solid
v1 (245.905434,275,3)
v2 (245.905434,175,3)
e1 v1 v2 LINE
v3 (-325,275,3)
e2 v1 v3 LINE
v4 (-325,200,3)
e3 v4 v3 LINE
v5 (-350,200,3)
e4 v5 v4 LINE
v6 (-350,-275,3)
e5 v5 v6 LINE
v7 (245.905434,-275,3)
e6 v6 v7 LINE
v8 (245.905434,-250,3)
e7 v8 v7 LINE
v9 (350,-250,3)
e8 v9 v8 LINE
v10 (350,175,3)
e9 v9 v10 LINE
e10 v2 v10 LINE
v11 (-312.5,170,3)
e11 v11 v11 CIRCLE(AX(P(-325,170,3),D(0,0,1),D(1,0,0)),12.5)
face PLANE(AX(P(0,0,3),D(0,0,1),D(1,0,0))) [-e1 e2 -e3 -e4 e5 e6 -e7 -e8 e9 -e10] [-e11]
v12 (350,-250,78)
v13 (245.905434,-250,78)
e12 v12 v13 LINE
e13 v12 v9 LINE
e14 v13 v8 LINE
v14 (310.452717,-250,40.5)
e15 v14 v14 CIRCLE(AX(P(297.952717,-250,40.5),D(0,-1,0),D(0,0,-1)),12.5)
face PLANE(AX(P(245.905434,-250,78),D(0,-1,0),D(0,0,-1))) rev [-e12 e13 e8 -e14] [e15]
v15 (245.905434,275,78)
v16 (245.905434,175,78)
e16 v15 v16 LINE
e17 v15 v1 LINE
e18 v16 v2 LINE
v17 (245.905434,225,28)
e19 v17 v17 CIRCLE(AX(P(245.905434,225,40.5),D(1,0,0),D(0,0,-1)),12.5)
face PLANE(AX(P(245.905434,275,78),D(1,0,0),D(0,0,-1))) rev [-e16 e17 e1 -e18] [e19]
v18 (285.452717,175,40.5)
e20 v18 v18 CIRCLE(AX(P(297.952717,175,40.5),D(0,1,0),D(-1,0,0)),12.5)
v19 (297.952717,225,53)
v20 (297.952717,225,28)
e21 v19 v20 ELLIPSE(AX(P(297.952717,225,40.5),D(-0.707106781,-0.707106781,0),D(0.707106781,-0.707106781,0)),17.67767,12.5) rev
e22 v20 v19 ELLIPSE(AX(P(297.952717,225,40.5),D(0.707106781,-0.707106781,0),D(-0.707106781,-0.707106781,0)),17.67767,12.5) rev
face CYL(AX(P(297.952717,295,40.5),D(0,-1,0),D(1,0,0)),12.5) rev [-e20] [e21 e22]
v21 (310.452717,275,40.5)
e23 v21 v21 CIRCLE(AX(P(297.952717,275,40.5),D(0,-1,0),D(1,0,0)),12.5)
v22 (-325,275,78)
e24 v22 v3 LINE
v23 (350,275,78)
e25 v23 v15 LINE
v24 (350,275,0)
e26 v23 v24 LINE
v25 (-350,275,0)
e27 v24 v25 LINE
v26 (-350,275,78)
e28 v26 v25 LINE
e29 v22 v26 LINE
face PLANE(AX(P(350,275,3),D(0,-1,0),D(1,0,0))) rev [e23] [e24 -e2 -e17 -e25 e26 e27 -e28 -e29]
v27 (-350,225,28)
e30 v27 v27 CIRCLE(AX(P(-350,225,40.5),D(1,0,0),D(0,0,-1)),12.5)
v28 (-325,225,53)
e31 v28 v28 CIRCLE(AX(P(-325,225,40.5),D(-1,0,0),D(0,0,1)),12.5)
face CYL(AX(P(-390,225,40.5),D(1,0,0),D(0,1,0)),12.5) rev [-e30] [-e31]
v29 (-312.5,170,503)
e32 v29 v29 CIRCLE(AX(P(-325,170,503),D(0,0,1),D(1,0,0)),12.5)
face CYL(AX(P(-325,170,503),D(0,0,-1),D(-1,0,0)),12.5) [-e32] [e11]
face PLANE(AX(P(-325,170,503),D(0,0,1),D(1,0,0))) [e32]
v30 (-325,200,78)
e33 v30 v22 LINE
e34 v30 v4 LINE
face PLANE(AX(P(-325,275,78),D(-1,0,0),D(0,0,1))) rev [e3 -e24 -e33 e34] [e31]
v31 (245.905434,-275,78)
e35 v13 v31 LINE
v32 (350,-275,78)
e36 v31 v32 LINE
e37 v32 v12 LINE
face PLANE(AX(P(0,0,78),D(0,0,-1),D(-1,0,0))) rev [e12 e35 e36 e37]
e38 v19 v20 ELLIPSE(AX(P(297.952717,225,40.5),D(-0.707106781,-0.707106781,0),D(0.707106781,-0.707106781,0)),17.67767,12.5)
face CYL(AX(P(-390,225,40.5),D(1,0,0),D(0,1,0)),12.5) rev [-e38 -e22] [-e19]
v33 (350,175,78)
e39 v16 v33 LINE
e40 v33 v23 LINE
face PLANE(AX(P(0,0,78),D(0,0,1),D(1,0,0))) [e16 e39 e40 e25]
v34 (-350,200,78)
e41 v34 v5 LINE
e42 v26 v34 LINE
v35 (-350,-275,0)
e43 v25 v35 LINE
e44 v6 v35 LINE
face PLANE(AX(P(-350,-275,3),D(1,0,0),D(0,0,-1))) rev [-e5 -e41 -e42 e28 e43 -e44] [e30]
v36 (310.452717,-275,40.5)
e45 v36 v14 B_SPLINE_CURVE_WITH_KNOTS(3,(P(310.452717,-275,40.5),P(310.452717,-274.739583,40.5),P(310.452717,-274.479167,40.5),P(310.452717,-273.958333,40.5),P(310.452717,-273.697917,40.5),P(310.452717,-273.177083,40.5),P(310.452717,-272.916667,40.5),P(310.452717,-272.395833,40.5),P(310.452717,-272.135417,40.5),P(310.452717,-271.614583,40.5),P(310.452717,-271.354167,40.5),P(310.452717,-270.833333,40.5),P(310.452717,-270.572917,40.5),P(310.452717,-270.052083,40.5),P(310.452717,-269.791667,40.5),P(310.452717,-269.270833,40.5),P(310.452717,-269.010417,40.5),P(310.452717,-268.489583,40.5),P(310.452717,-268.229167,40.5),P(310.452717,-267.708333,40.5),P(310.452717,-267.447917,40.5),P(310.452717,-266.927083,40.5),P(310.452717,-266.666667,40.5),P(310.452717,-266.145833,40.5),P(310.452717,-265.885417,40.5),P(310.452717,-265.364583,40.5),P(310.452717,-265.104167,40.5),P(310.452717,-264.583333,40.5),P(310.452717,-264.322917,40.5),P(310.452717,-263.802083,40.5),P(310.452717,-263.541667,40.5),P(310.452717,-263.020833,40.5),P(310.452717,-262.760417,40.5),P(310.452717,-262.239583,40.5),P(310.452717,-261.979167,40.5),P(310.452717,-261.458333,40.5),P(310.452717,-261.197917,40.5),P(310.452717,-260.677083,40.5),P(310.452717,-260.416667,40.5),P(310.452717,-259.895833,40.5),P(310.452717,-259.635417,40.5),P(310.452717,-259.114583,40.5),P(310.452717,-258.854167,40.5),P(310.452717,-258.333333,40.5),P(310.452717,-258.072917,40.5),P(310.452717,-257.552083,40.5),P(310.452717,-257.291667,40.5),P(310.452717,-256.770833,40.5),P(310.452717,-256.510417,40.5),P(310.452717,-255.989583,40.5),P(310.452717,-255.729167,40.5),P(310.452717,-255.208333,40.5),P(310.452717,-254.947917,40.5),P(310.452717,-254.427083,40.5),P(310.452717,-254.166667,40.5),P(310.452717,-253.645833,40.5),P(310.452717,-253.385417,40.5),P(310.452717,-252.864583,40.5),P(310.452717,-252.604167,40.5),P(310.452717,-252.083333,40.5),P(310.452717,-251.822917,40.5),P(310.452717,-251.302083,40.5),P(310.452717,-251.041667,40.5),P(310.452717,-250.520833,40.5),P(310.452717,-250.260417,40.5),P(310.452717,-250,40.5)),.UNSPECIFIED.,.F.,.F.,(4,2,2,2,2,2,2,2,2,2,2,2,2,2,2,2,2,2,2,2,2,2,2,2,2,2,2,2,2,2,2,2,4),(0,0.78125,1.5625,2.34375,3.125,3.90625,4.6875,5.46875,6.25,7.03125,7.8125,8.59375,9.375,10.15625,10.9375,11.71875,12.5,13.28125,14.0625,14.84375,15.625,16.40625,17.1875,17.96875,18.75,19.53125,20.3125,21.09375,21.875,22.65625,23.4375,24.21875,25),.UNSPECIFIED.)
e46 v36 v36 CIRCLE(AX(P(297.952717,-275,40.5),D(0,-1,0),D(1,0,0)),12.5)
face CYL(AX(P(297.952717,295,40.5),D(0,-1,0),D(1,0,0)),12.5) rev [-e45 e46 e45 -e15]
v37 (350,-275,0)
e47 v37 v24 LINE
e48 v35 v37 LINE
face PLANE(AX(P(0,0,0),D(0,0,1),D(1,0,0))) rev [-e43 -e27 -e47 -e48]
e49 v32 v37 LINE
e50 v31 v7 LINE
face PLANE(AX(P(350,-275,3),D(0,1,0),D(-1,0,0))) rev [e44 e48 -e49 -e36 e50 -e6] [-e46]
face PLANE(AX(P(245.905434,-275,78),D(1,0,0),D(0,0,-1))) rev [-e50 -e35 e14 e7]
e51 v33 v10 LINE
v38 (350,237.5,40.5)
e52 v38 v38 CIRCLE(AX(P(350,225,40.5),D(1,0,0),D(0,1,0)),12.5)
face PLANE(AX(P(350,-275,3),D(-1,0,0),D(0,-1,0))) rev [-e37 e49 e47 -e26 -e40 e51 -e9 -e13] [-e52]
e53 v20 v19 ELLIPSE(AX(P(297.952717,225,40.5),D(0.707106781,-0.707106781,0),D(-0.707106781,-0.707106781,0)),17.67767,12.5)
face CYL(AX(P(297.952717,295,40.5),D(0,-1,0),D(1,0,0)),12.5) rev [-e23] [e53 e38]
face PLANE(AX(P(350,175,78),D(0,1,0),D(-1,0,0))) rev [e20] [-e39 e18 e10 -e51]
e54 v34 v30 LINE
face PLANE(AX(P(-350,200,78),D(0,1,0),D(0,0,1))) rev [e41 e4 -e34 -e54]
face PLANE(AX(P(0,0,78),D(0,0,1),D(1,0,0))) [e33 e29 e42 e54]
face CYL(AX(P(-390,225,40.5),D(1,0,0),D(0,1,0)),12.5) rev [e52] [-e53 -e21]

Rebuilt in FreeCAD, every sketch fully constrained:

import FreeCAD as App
import Part
import Sketcher

V = App.Vector
Q = App.Units.Quantity


def add_polygon(sketch, points):
    """Adds a closed chain of lines whose ends are joined by coincident constraints."""
    first, n = sketch.GeometryCount, len(points)
    for a, b in zip(points, points[1:] + points[:1]):
        sketch.addGeometry(Part.LineSegment(App.Vector(*a, 0), App.Vector(*b, 0)), False)
    for i in range(n):
        sketch.addConstraint(Sketcher.Constraint("Coincident", first + i, 2, first + (i + 1) % n, 1))

doc = App.newDocument("Part")
body = doc.addObject("PartDesign::Body", "Body")

# Sketch on XY plane
sketch1 = body.newObject("Sketcher::SketchObject", "Sketch")
sketch1.AttachmentSupport = (doc.getObject("XY_Plane"), [""])
sketch1.MapMode = "FlatFace"
add_polygon(sketch1, [(-350, 275), (-350, -275), (350, -275), (350, 275)])  # lines 0-3
sketch1.addConstraint([
    Sketcher.Constraint("Vertical", 0),
    Sketcher.Constraint("Horizontal", 1),
    Sketcher.Constraint("Vertical", 2),
    Sketcher.Constraint("Horizontal", 3),
    Sketcher.Constraint("Symmetric", 0, 2, 2, 2, -1, 1),
    Sketcher.Constraint("DistanceX", 1, 1, 1, 2, Q("700 mm")),
    Sketcher.Constraint("DistanceY", 0, 2, 0, 1, Q("550 mm")),
])
pad1 = body.newObject("PartDesign::Pad", "Pad")
pad1.Profile = sketch1
pad1.Length = 3

# Sketch on XY plane
sketch2 = body.newObject("Sketcher::SketchObject", "Sketch001")
sketch2.AttachmentSupport = (doc.getObject("XY_Plane"), [""])
sketch2.MapMode = "FlatFace"
sketch2.AttachmentOffset = App.Placement(V(0, 0, 3), App.Rotation())
add_polygon(sketch2, [(350, 175), (350, 275), (245.905434, 275), (245.905434, 175)])  # lines 0-3
add_polygon(sketch2, [(-350, 275), (-350, 200), (-325, 200), (-325, 275)])  # lines 4-7
add_polygon(sketch2, [(245.905434, -250), (245.905434, -275), (350, -275), (350, -250)])  # lines 8-11
sketch2.addConstraint([
    Sketcher.Constraint("Vertical", 0),
    Sketcher.Constraint("Horizontal", 1),
    Sketcher.Constraint("Vertical", 2),
    Sketcher.Constraint("Horizontal", 3),
    Sketcher.Constraint("Vertical", 4),
    Sketcher.Constraint("Horizontal", 5),
    Sketcher.Constraint("Vertical", 6),
    Sketcher.Constraint("Horizontal", 7),
    Sketcher.Constraint("Vertical", 8),
    Sketcher.Constraint("Horizontal", 9),
    Sketcher.Constraint("Vertical", 10),
    Sketcher.Constraint("Horizontal", 11),
    Sketcher.Constraint("Symmetric", 7, 2, 9, 2, -1, 1),
    Sketcher.Constraint("Symmetric", 0, 2, 7, 2, -2),
    Sketcher.Constraint("Vertical", 2, 2, 8, 2),
    Sketcher.Constraint("Equal", 7, 8),
    Sketcher.Constraint("DistanceX", 5, 1, 5, 2, Q("25 mm")),
    Sketcher.Constraint("DistanceY", 0, 1, 0, 2, Q("100 mm")),
    Sketcher.Constraint("DistanceY", 4, 2, 4, 1, Q("75 mm")),
    Sketcher.Constraint("DistanceX", -1, 1, 0, 2, Q("350 mm")),
    Sketcher.Constraint("DistanceY", -1, 1, 0, 2, Q("275 mm")),
    Sketcher.Constraint("DistanceX", 1, 2, 1, 1, Q("104.094566 mm")),
])
pad2 = body.newObject("PartDesign::Pad", "Pad001")
pad2.Profile = sketch2
pad2.Length = 75

# Sketch on XZ plane
sketch3 = body.newObject("Sketcher::SketchObject", "Sketch002")
sketch3.AttachmentSupport = (doc.getObject("XZ_Plane"), [""])
sketch3.MapMode = "FlatFace"
sketch3.AttachmentOffset = App.Placement(V(0, 0, 275), App.Rotation())
sketch3.addGeometry(Part.Circle(V(297.952717, 40.5, 0), V(0, 0, 1), 12.5), False)
sketch3.addConstraint([
    Sketcher.Constraint("Diameter", 0, Q("25 mm")),
    Sketcher.Constraint("DistanceY", -1, 1, 0, 3, Q("40.5 mm")),
    Sketcher.Constraint("DistanceX", -1, 1, 0, 3, Q("297.952717 mm")),
])
pocket1 = body.newObject("PartDesign::Pocket", "Pocket")
pocket1.Profile = sketch3
pocket1.Length = 570

# Sketch on YZ plane
sketch4 = body.newObject("Sketcher::SketchObject", "Sketch003")
sketch4.AttachmentSupport = (doc.getObject("YZ_Plane"), [""])
sketch4.MapMode = "FlatFace"
sketch4.AttachmentOffset = App.Placement(V(0, 0, 350), App.Rotation())
sketch4.addGeometry(Part.Circle(V(225, 40.5, 0), V(0, 0, 1), 12.5), False)
sketch4.addConstraint([
    Sketcher.Constraint("Diameter", 0, Q("25 mm")),
    Sketcher.Constraint("DistanceX", -1, 1, 0, 3, Q("225 mm")),
    Sketcher.Constraint("DistanceY", -1, 1, 0, 3, Q("40.5 mm")),
])
pocket2 = body.newObject("PartDesign::Pocket", "Pocket001")
pocket2.Profile = sketch4
pocket2.Length = 740

# Sketch on XY plane
sketch5 = body.newObject("Sketcher::SketchObject", "Sketch004")
sketch5.AttachmentSupport = (doc.getObject("XY_Plane"), [""])
sketch5.MapMode = "FlatFace"
sketch5.AttachmentOffset = App.Placement(V(0, 0, 3), App.Rotation())
sketch5.addGeometry(Part.Circle(V(-325, 170, 0), V(0, 0, 1), 12.5), False)
sketch5.addConstraint([
    Sketcher.Constraint("Diameter", 0, Q("25 mm")),
    Sketcher.Constraint("DistanceX", 0, 3, -1, 1, Q("325 mm")),
    Sketcher.Constraint("DistanceY", -1, 1, 0, 3, Q("170 mm")),
])
pad3 = body.newObject("PartDesign::Pad", "Pad002")
pad3.Profile = sketch5
pad3.Length = 500

doc.recompute()
